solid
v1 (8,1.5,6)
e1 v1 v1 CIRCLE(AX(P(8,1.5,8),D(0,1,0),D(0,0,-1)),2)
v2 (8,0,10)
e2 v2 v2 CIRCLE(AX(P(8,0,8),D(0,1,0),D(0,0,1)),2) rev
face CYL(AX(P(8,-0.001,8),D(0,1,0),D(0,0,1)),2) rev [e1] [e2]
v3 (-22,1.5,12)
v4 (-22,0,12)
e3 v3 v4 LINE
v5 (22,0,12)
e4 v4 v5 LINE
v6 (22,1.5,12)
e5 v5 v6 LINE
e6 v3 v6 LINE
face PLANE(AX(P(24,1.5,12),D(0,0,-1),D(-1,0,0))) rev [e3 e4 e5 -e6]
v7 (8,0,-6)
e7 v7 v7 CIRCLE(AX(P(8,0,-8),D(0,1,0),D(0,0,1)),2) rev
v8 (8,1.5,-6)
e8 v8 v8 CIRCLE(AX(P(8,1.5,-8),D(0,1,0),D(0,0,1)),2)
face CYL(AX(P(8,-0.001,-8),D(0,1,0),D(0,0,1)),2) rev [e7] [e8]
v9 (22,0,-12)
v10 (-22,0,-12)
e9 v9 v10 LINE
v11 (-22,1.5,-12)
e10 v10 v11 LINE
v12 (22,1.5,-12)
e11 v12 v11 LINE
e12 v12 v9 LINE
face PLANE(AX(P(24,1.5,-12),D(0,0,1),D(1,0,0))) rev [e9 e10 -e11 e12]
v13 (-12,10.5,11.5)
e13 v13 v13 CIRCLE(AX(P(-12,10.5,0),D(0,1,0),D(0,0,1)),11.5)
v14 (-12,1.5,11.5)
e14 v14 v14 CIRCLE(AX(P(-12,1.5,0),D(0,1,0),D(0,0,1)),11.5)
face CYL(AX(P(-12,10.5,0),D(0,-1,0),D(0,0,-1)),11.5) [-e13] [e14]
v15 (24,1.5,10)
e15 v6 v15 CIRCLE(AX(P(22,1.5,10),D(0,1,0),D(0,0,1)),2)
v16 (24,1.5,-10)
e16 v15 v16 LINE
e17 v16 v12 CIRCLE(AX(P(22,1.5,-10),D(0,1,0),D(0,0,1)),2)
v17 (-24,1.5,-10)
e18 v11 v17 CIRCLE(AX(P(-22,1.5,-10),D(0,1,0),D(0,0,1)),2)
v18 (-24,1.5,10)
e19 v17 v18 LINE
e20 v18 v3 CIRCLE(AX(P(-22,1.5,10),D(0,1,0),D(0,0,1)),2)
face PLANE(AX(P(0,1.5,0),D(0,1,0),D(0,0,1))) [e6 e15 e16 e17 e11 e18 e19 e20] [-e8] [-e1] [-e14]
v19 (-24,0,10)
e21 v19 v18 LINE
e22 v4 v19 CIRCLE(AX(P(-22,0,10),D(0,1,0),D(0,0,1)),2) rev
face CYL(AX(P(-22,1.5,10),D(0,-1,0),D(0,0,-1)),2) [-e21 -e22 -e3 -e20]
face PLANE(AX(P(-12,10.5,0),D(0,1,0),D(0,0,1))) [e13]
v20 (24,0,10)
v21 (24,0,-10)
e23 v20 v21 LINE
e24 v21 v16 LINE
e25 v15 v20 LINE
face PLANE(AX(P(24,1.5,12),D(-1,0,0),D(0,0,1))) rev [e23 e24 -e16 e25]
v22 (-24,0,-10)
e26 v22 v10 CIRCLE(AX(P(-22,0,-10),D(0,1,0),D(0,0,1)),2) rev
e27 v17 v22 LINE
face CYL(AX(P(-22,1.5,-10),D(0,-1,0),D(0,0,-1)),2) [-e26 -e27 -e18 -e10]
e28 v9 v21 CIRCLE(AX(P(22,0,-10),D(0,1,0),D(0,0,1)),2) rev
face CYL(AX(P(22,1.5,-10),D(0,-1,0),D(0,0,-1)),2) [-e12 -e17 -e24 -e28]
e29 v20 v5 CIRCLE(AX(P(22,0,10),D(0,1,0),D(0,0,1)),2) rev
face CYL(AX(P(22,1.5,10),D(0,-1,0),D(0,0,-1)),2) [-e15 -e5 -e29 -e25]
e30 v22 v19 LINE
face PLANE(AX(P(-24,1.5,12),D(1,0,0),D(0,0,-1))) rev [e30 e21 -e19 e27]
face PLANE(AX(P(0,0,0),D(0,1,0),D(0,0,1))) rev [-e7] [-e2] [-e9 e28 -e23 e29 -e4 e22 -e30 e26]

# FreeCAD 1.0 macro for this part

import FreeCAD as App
import Part
import Sketcher


def edges_at(feature, points):
    """Names of the edges that pass closest to the given points."""
    edges = feature.Shape.Edges
    near = lambda p: min(range(len(edges)), key=lambda i: edges[i].distToShape(Part.Vertex(*p))[0])
    return sorted({f"Edge{near(p) + 1}" for p in points})

doc = App.newDocument("Part")
body = doc.addObject("PartDesign::Body", "Body")

# Sketch on XZ plane
sketch1 = doc.addObject("Sketcher::SketchObject", "Sketch")
body.addObject(sketch1)
sketch1.AttachmentSupport = (doc.XZ_Plane, [""])
sketch1.MapMode = "FlatFace"
sketch1.addGeometry(Part.LineSegment(App.Vector(-24, -12, 0), App.Vector(-24, 12, 0)), False)
sketch1.addGeometry(Part.LineSegment(App.Vector(-24, 12, 0), App.Vector(24, 12, 0)), False)
sketch1.addGeometry(Part.LineSegment(App.Vector(24, 12, 0), App.Vector(24, -12, 0)), False)
sketch1.addGeometry(Part.LineSegment(App.Vector(24, -12, 0), App.Vector(-24, -12, 0)), False)
sketch1.addConstraint(Sketcher.Constraint("Coincident", 0, 2, 1, 1))
sketch1.addConstraint(Sketcher.Constraint("Coincident", 1, 2, 2, 1))
sketch1.addConstraint(Sketcher.Constraint("Coincident", 2, 2, 3, 1))
sketch1.addConstraint(Sketcher.Constraint("Coincident", 3, 2, 0, 1))
sketch1.addConstraint(Sketcher.Constraint("Vertical", 0))
sketch1.addConstraint(Sketcher.Constraint("Horizontal", 1))
sketch1.addConstraint(Sketcher.Constraint("Vertical", 2))
sketch1.addConstraint(Sketcher.Constraint("Horizontal", 3))
sketch1.addConstraint(Sketcher.Constraint("Symmetric", 0, 2, 2, 2, -1, 1))
sketch1.addConstraint(Sketcher.Constraint("DistanceX", 1, 1, 1, 2, 48.0))
sketch1.addConstraint(Sketcher.Constraint("DistanceY", 0, 1, 0, 2, 24.0))
pad1 = doc.addObject("PartDesign::Pad", "Pad")
body.addObject(pad1)
pad1.Profile = sketch1
pad1.Length = 1.5
pad1.Reversed = True
doc.recompute()

fillet = doc.addObject("PartDesign::Fillet", "Fillet")
body.addObject(fillet)
fillet.Base = (pad1, edges_at(pad1, [
    (-24, 0.75, -12),
    (24, 0.75, -12),
    (24, 0.75, 12),
    (-24, 0.75, 12),
]))
fillet.Radius = 2

# Sketch on XZ plane
sketch2 = doc.addObject("Sketcher::SketchObject", "Sketch001")
body.addObject(sketch2)
sketch2.AttachmentSupport = (doc.XZ_Plane, [""])
sketch2.MapMode = "FlatFace"
sketch2.AttachmentOffset = App.Placement(App.Vector(0, 0, -1.5), App.Rotation())
sketch2.addGeometry(Part.Circle(App.Vector(8, -8, 0), App.Vector(0, 0, 1), 2), False)
sketch2.addConstraint(Sketcher.Constraint("Diameter", 0, 4.0))
sketch2.addConstraint(Sketcher.Constraint("DistanceX", -1, 1, 0, 3, 8.0))
sketch2.addConstraint(Sketcher.Constraint("DistanceY", 0, 3, -1, 1, 8.0))
pocket1 = doc.addObject("PartDesign::Pocket", "Pocket")
body.addObject(pocket1)
pocket1.Profile = sketch2
pocket1.Type = "UpToFirst"
pocket1.Reversed = True

# Sketch on XZ plane
sketch3 = doc.addObject("Sketcher::SketchObject", "Sketch002")
body.addObject(sketch3)
sketch3.AttachmentSupport = (doc.XZ_Plane, [""])
sketch3.MapMode = "FlatFace"
sketch3.AttachmentOffset = App.Placement(App.Vector(0, 0, -1.5), App.Rotation())
sketch3.addGeometry(Part.Circle(App.Vector(8, 8, 0), App.Vector(0, 0, 1), 2), False)
sketch3.addConstraint(Sketcher.Constraint("Diameter", 0, 4.0))
sketch3.addConstraint(Sketcher.Constraint("DistanceX", -1, 1, 0, 3, 8.0))
sketch3.addConstraint(Sketcher.Constraint("DistanceY", -1, 1, 0, 3, 8.0))
pocket2 = doc.addObject("PartDesign::Pocket", "Pocket001")
body.addObject(pocket2)
pocket2.Profile = sketch3
pocket2.Type = "UpToFirst"
pocket2.Reversed = True

# Sketch on XZ plane
sketch4 = doc.addObject("Sketcher::SketchObject", "Sketch003")
body.addObject(sketch4)
sketch4.AttachmentSupport = (doc.XZ_Plane, [""])
sketch4.MapMode = "FlatFace"
sketch4.AttachmentOffset = App.Placement(App.Vector(0, 0, -1.5), App.Rotation())
sketch4.addGeometry(Part.Circle(App.Vector(-12, 0, 0), App.Vector(0, 0, 1), 12), False)
sketch4.addConstraint(Sketcher.Constraint("PointOnObject", 0, 3, -1))
sketch4.addConstraint(Sketcher.Constraint("Diameter", 0, 23.0))
sketch4.addConstraint(Sketcher.Constraint("DistanceX", 0, 3, -1, 1, 12.0))
pad2 = doc.addObject("PartDesign::Pad", "Pad001")
body.addObject(pad2)
pad2.Profile = sketch4
pad2.Length = 9
pad2.Reversed = True

doc.recompute()
